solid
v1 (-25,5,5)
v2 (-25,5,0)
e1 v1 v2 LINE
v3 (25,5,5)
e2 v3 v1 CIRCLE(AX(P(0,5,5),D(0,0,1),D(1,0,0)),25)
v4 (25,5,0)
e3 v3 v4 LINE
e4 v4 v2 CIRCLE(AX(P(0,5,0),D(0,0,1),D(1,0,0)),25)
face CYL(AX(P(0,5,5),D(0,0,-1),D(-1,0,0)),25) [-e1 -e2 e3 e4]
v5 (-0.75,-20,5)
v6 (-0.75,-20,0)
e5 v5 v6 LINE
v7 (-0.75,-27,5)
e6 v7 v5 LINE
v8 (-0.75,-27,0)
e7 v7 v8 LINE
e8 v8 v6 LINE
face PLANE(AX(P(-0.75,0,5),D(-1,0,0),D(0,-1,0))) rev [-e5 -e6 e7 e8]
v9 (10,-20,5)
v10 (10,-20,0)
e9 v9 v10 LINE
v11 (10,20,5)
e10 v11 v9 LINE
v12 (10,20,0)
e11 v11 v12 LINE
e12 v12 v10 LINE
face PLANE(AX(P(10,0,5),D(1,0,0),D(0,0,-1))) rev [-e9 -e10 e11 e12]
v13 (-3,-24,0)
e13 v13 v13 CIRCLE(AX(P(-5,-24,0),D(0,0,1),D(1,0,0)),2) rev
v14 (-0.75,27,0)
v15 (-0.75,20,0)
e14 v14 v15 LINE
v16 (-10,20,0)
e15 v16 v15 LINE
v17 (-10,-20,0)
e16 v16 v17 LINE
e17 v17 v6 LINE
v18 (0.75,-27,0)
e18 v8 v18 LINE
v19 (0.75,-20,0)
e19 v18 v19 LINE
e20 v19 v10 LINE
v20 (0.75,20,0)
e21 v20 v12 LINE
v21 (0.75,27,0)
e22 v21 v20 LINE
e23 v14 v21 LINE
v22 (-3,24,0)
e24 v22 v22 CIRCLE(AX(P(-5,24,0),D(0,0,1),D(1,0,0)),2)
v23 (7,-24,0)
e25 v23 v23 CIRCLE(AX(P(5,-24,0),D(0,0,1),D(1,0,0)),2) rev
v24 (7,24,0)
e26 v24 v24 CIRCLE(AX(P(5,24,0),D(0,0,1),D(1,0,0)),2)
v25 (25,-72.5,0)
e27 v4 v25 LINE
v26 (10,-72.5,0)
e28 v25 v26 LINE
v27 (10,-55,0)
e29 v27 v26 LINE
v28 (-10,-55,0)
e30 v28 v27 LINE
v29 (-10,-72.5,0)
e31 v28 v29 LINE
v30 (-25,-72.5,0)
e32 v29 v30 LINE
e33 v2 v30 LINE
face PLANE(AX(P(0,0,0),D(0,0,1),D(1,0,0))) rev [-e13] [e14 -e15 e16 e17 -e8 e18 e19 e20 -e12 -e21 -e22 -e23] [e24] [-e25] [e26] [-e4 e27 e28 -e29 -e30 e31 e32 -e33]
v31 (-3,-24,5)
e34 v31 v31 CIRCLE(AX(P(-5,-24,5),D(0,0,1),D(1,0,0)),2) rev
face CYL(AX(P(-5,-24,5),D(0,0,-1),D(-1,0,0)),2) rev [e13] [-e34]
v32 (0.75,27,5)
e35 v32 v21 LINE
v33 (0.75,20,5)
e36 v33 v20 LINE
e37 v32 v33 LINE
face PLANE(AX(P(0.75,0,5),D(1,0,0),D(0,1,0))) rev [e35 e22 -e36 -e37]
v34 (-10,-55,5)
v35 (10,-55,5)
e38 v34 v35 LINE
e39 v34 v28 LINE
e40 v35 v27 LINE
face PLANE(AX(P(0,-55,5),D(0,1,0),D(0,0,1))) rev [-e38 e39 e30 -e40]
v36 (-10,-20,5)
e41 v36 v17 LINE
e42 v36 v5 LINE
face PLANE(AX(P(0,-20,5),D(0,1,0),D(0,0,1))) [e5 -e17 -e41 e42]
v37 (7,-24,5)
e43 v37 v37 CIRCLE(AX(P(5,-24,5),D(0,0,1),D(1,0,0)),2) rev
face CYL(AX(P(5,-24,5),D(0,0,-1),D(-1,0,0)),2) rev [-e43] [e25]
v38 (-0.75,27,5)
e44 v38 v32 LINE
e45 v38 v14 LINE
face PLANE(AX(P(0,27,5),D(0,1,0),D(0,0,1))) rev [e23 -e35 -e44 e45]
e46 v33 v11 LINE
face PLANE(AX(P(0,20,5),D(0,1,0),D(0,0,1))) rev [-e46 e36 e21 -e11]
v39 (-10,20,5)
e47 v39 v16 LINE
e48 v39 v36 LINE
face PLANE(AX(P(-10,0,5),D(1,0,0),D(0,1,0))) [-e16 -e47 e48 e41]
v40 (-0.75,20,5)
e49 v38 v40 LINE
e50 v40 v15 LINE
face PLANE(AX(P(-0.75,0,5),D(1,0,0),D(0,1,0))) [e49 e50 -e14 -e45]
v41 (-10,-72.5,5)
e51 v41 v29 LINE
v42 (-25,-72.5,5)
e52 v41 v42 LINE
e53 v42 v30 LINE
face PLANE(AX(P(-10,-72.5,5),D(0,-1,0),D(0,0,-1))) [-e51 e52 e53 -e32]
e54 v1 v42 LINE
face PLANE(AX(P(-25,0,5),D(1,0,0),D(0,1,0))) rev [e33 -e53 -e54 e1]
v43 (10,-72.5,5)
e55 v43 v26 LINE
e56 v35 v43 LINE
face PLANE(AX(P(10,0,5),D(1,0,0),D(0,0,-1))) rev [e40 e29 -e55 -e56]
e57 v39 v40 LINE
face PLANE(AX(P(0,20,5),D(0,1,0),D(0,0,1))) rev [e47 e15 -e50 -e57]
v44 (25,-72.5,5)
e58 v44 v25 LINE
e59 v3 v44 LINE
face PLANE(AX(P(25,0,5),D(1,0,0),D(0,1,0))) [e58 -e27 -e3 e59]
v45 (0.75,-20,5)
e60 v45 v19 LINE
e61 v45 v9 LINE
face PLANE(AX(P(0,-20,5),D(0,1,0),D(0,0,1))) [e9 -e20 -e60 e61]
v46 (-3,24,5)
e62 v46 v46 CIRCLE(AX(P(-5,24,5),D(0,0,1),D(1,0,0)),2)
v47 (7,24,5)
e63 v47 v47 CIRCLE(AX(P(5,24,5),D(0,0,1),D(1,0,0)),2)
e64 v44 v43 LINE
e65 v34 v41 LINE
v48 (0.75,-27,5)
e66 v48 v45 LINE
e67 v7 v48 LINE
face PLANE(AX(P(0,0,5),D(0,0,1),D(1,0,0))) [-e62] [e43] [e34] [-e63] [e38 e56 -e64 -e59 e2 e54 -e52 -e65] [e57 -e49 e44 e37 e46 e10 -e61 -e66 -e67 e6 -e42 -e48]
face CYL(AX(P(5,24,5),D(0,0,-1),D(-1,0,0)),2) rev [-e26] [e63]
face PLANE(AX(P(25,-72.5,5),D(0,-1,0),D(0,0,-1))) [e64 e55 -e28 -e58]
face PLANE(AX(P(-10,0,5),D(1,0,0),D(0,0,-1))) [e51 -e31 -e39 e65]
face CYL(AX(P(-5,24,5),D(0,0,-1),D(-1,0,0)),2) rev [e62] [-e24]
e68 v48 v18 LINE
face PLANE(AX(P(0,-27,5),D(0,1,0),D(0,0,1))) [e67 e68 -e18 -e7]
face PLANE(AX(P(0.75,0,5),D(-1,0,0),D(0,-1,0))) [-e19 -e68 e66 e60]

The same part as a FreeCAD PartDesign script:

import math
import FreeCAD as App
import Part
import Sketcher
from FreeCAD import Vector
Q = App.Units.Quantity

doc = App.newDocument("Part")
body = doc.addObject("PartDesign::Body", "Body")

# Sketch on XY plane
sketch1 = body.newObject("Sketcher::SketchObject", "Sketch")
sketch1.AttachmentSupport = (doc.getObject("XY_Plane"), [""])
sketch1.MapMode = "FlatFace"
sketch1.addGeometry([
    Part.ArcOfCircle(Part.Circle(Vector(0, 5, 0), Vector(0, 0, 1), 25), math.radians(0), math.radians(180)),  # 0
    Part.LineSegment(Vector(-25, 5, 0), Vector(-25, -72.5, 0)),  # 1
    Part.LineSegment(Vector(-25, -72.5, 0), Vector(-10, -72.5, 0)),  # 2
    Part.LineSegment(Vector(-10, -72.5, 0), Vector(-10, -55, 0)),  # 3
    Part.LineSegment(Vector(-10, -55, 0), Vector(10, -55, 0)),  # 4
    Part.LineSegment(Vector(10, -55, 0), Vector(10, -72.5, 0)),  # 5
    Part.LineSegment(Vector(10, -72.5, 0), Vector(25, -72.5, 0)),  # 6
    Part.LineSegment(Vector(25, -72.5, 0), Vector(25, 5, 0)),  # 7
    Part.Circle(Vector(-5, -24, 0), Vector(0, 0, 1), 2),  # 8
    Part.Circle(Vector(5, -24, 0), Vector(0, 0, 1), 2),  # 9
    Part.Circle(Vector(-5, 24, 0), Vector(0, 0, 1), 2),  # 10
    Part.LineSegment(Vector(-10, -20, 0), Vector(-10, 20, 0)),  # 11
    Part.LineSegment(Vector(-10, 20, 0), Vector(-0.75, 20, 0)),  # 12
    Part.LineSegment(Vector(-0.75, 20, 0), Vector(-0.75, 27, 0)),  # 13
    Part.LineSegment(Vector(-0.75, 27, 0), Vector(0.75, 27, 0)),  # 14
    Part.LineSegment(Vector(0.75, 27, 0), Vector(0.75, 20, 0)),  # 15
    Part.LineSegment(Vector(0.75, 20, 0), Vector(10, 20, 0)),  # 16
    Part.LineSegment(Vector(10, 20, 0), Vector(10, -20, 0)),  # 17
    Part.LineSegment(Vector(10, -20, 0), Vector(0.75, -20, 0)),  # 18
    Part.LineSegment(Vector(0.75, -20, 0), Vector(0.75, -27, 0)),  # 19
    Part.LineSegment(Vector(0.75, -27, 0), Vector(-0.75, -27, 0)),  # 20
    Part.LineSegment(Vector(-0.75, -27, 0), Vector(-0.75, -20, 0)),  # 21
    Part.LineSegment(Vector(-0.75, -20, 0), Vector(-10, -20, 0)),  # 22
    Part.Circle(Vector(5, 24, 0), Vector(0, 0, 1), 2),  # 23
], False)
sketch1.addConstraint([
    Sketcher.Constraint("Tangent", 0, 2, 1, 1),
    Sketcher.Constraint("Coincident", 1, 2, 2, 1),
    Sketcher.Constraint("Coincident", 2, 2, 3, 1),
    Sketcher.Constraint("Coincident", 3, 2, 4, 1),
    Sketcher.Constraint("Coincident", 4, 2, 5, 1),
    Sketcher.Constraint("Coincident", 5, 2, 6, 1),
    Sketcher.Constraint("Coincident", 6, 2, 7, 1),
    Sketcher.Constraint("Tangent", 7, 2, 0, 1),
    Sketcher.Constraint("Coincident", 11, 2, 12, 1),
    Sketcher.Constraint("Coincident", 12, 2, 13, 1),
    Sketcher.Constraint("Coincident", 13, 2, 14, 1),
    Sketcher.Constraint("Coincident", 14, 2, 15, 1),
    Sketcher.Constraint("Coincident", 15, 2, 16, 1),
    Sketcher.Constraint("Coincident", 16, 2, 17, 1),
    Sketcher.Constraint("Coincident", 17, 2, 18, 1),
    Sketcher.Constraint("Coincident", 18, 2, 19, 1),
    Sketcher.Constraint("Coincident", 19, 2, 20, 1),
    Sketcher.Constraint("Coincident", 20, 2, 21, 1),
    Sketcher.Constraint("Coincident", 21, 2, 22, 1),
    Sketcher.Constraint("Coincident", 22, 2, 11, 1),
    Sketcher.Constraint("Vertical", 1),
    Sketcher.Constraint("Horizontal", 2),
    Sketcher.Constraint("Vertical", 3),
    Sketcher.Constraint("Horizontal", 4),
    Sketcher.Constraint("Vertical", 5),
    Sketcher.Constraint("Horizontal", 6),
    Sketcher.Constraint("Vertical", 7),
    Sketcher.Constraint("Vertical", 11),
    Sketcher.Constraint("Horizontal", 12),
    Sketcher.Constraint("Vertical", 13),
    Sketcher.Constraint("Horizontal", 14),
    Sketcher.Constraint("Vertical", 15),
    Sketcher.Constraint("Horizontal", 16),
    Sketcher.Constraint("Vertical", 17),
    Sketcher.Constraint("Horizontal", 18),
    Sketcher.Constraint("Vertical", 19),
    Sketcher.Constraint("Horizontal", 20),
    Sketcher.Constraint("Vertical", 21),
    Sketcher.Constraint("Horizontal", 22),
    Sketcher.Constraint("Equal", 8, 9),
    Sketcher.Constraint("Equal", 9, 10),
    Sketcher.Constraint("Equal", 10, 23),
    Sketcher.Constraint("Symmetric", 9, 3, 10, 3, -1, 1),
    Sketcher.Constraint("Symmetric", 8, 3, 23, 3, -1, 1),
    Sketcher.Constraint("Symmetric", 11, 2, 17, 2, -1, 1),
    Sketcher.Constraint("Symmetric", 13, 2, 19, 2, -1, 1),
    Sketcher.Constraint("Symmetric", 15, 2, 21, 2, -1, 1),
    Sketcher.Constraint("Symmetric", 8, 3, 9, 3, -2),
    Sketcher.Constraint("Symmetric", 2, 2, 5, 2, -2),
    Sketcher.Constraint("Symmetric", 12, 2, 15, 2, -2),
    Sketcher.Constraint("PointOnObject", 0, 3, -2),
    Sketcher.Constraint("Vertical", 3, 2, 11, 2),
    Sketcher.Constraint("Diameter", 8, Q("4 mm")),
    Sketcher.Constraint("Radius", 0, Q("25 mm")),
    Sketcher.Constraint("DistanceX", 2, 1, 2, 2, Q("15 mm")),
    Sketcher.Constraint("DistanceY", 11, 1, 11, 2, Q("40 mm")),
    Sketcher.Constraint("DistanceY", 13, 1, 13, 2, Q("7 mm")),
    Sketcher.Constraint("DistanceX", 14, 1, 14, 2, Q("1.5 mm")),
    Sketcher.Constraint("DistanceY", 1, 2, 1, 1, Q("77.5 mm")),
    Sketcher.Constraint("DistanceY", 3, 1, 3, 2, Q("17.5 mm")),
    Sketcher.Constraint("DistanceY", -1, 1, 0, 3, Q("5 mm")),
    Sketcher.Constraint("DistanceX", 8, 3, -1, 1, Q("5 mm")),
    Sketcher.Constraint("DistanceY", 8, 3, -1, 1, Q("24 mm")),
])
pad1 = body.newObject("PartDesign::Pad", "Pad")
pad1.Profile = sketch1
pad1.Length = 5

doc.recompute()
